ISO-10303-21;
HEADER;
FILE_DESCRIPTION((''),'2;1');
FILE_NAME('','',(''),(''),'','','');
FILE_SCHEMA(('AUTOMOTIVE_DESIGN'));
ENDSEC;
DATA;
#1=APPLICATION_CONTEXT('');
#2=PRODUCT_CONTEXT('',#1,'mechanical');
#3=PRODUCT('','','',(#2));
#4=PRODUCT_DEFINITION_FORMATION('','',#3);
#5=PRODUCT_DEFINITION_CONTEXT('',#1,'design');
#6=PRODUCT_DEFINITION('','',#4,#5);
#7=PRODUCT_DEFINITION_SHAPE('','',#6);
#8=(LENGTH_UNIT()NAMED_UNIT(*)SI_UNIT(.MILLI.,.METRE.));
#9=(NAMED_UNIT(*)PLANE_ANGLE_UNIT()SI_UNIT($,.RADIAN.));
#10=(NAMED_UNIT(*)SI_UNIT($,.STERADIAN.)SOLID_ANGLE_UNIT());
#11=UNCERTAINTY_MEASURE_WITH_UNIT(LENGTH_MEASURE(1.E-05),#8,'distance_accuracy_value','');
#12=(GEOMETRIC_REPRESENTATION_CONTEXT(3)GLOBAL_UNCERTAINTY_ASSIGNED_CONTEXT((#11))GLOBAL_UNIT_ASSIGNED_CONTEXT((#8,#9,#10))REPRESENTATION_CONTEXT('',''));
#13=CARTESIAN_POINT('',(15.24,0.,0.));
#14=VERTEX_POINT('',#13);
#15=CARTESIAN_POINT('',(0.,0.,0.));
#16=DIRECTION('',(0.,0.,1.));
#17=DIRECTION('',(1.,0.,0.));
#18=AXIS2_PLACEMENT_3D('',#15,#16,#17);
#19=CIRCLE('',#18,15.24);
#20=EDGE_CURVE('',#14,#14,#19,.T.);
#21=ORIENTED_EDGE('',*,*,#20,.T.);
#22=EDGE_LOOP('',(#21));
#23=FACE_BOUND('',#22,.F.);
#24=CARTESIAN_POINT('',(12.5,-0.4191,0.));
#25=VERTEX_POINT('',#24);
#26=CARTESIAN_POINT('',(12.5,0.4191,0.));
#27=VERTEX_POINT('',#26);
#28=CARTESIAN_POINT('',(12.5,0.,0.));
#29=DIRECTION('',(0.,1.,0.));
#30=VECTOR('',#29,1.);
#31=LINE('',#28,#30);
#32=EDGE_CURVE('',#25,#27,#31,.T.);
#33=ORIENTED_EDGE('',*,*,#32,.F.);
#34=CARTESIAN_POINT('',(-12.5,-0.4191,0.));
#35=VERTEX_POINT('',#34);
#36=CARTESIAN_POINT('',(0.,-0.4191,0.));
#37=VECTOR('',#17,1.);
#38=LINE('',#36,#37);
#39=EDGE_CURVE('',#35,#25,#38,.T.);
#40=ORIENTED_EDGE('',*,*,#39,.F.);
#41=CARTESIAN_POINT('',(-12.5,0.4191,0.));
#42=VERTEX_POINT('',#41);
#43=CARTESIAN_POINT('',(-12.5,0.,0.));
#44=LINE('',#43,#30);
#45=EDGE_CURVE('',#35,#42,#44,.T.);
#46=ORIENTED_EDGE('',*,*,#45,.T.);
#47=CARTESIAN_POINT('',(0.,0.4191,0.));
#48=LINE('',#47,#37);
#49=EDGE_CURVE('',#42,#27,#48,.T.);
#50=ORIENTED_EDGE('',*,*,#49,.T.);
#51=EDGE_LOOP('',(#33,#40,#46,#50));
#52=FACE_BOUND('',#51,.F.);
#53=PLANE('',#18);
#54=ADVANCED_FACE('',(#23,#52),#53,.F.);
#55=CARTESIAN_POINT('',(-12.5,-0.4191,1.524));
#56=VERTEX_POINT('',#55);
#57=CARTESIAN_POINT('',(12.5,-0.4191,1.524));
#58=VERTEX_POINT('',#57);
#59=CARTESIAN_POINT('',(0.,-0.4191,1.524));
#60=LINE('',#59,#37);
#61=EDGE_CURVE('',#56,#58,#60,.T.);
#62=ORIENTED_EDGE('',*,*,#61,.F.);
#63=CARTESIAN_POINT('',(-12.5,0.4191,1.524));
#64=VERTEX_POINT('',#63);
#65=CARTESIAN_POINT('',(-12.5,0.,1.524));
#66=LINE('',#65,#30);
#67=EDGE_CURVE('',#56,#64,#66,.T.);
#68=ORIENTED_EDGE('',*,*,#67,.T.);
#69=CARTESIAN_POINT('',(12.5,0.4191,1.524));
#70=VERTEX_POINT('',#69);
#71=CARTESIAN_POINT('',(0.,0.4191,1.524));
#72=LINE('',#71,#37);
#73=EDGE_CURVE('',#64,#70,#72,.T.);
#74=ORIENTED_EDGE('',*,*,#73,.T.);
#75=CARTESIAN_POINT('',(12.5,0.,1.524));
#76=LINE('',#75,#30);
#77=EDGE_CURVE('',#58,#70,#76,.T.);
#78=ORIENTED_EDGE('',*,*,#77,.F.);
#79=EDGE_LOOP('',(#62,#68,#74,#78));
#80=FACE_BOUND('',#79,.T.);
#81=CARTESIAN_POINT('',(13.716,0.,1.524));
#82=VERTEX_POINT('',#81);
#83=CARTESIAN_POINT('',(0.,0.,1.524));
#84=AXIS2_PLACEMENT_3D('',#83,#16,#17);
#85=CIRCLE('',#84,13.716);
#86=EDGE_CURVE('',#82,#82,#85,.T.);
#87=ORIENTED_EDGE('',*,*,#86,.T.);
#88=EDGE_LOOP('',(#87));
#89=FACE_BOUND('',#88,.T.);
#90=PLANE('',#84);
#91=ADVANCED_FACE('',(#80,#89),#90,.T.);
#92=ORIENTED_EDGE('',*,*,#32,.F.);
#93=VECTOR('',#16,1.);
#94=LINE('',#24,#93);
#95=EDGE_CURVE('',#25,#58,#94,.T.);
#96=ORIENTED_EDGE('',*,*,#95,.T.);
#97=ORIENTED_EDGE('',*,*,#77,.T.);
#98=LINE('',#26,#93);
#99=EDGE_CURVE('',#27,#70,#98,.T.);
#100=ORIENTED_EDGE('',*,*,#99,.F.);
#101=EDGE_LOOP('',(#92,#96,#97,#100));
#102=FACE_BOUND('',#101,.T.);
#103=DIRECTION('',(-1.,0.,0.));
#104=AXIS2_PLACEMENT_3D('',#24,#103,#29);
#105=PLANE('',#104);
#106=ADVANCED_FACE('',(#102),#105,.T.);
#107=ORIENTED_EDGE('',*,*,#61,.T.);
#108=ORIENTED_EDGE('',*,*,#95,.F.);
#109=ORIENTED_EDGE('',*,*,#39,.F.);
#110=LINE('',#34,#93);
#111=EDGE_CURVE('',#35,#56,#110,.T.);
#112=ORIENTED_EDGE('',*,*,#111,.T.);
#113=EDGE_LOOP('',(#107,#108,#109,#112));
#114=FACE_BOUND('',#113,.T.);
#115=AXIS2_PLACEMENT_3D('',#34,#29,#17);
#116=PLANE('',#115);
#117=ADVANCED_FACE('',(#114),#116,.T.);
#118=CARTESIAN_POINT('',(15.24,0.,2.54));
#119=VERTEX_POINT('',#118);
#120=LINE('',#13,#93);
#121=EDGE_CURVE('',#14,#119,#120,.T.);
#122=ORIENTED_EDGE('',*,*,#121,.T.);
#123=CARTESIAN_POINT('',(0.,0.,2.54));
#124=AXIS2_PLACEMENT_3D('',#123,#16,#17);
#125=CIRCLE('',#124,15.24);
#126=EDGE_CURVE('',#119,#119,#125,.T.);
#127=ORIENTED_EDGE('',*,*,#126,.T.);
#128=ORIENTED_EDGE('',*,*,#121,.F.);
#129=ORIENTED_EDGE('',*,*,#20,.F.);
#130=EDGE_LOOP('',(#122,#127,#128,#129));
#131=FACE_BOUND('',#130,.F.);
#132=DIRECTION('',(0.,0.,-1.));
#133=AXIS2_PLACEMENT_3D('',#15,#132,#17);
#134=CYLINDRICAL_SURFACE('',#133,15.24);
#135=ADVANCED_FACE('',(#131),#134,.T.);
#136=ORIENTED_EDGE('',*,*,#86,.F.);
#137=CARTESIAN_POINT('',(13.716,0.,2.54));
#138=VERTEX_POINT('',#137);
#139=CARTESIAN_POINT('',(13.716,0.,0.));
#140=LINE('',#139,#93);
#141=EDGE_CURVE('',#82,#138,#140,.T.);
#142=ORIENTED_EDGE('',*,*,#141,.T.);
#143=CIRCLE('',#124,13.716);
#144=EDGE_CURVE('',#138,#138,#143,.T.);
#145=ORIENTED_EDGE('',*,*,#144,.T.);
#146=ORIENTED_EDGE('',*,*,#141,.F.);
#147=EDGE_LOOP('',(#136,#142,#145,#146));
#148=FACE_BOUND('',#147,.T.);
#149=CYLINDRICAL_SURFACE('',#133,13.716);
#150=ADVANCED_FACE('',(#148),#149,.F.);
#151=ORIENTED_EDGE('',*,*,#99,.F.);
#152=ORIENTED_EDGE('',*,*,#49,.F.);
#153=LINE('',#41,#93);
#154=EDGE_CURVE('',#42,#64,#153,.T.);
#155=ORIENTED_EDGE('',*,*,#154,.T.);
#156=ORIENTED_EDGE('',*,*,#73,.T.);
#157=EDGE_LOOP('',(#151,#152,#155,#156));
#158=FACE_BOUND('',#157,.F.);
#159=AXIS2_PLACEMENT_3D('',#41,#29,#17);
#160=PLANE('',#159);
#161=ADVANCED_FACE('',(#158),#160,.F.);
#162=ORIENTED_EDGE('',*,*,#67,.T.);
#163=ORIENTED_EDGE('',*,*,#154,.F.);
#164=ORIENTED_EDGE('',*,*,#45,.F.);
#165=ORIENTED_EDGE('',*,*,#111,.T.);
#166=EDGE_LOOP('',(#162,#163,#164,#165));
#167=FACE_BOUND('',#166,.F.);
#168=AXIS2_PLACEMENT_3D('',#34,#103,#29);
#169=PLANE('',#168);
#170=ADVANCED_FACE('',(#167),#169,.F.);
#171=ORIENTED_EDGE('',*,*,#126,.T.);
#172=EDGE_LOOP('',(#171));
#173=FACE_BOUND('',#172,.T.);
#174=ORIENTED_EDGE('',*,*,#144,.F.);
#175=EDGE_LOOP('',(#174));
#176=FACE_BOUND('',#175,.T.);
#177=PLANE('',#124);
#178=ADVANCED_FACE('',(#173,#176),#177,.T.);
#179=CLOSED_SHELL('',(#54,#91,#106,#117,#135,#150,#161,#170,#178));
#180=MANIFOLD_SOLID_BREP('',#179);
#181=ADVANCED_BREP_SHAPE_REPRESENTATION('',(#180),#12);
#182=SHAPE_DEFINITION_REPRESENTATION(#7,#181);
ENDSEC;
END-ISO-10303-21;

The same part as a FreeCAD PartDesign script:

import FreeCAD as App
import Part
import Sketcher
from FreeCAD import Vector
Q = App.Units.Quantity


def add_polygon(sketch, points):
    """Adds a closed chain of lines whose ends are joined by coincident constraints."""
    first, n = sketch.GeometryCount, len(points)
    for a, b in zip(points, points[1:] + points[:1]):
        sketch.addGeometry(Part.LineSegment(App.Vector(*a, 0), App.Vector(*b, 0)), False)
    for i in range(n):
        sketch.addConstraint(Sketcher.Constraint("Coincident", first + i, 2, first + (i + 1) % n, 1))

doc = App.newDocument("Part")
params = doc.addObject("Spreadsheet::Sheet", "Params")
for row, (alias, value) in enumerate([
    ("sketch1_diameter", "1.2 in"),
    ("sketch1_diameter2", "1.08 in"),
    ("pad1_length", "0.1 in"),
    ("sketch2_diameter", "1.08 in"),
    ("sketch2_height", "0.033 in"),
    ("pad2_length", "0.06 in"),
], start=1):
    params.set(f"A{row}", alias)
    params.set(f"B{row}", "=" + value)
    params.setAlias(f"B{row}", alias)

body = doc.addObject("PartDesign::Body", "Body")

# Sketch on XY plane
sketch1 = doc.addObject("Sketcher::SketchObject", "Sketch")
body.addObject(sketch1)
sketch1.AttachmentSupport = (doc.XY_Plane, [""])
sketch1.MapMode = "FlatFace"
sketch1.addGeometry(Part.Circle(Vector(0, 0, 0), Vector(0, 0, 1), 15.24), False)
sketch1.addGeometry(Part.Circle(Vector(0, 0, 0), Vector(0, 0, 1), 13.716), False)
sketch1.addConstraint(Sketcher.Constraint("Coincident", 0, 3, -1, 1))
sketch1.addConstraint(Sketcher.Constraint("Coincident", 1, 3, -1, 1))
sketch1.addConstraint(Sketcher.Constraint("Diameter", 0, Q("1.2 in")))
sketch1.addConstraint(Sketcher.Constraint("Diameter", 1, Q("1.08 in")))
sketch1.setExpression("Constraints[2]", "Params.sketch1_diameter")
sketch1.setExpression("Constraints[3]", "Params.sketch1_diameter2")
pad1 = doc.addObject("PartDesign::Pad", "Pad")
body.addObject(pad1)
pad1.Profile = sketch1
pad1.setExpression("Length", "Params.pad1_length")

# Sketch on XY plane
sketch2 = doc.addObject("Sketcher::SketchObject", "Sketch001")
body.addObject(sketch2)
sketch2.AttachmentSupport = (doc.XY_Plane, [""])
sketch2.MapMode = "FlatFace"
sketch2.addGeometry(Part.Circle(Vector(0, 0, 0), Vector(0, 0, 1), 13.716), False)  # 0
add_polygon(sketch2, [(12.5, -0.4191), (-12.5, -0.4191), (-12.5, 0.4191), (12.5, 0.4191)])  # lines 1-4
sketch2.addConstraint(Sketcher.Constraint("Horizontal", 1))
sketch2.addConstraint(Sketcher.Constraint("Vertical", 2))
sketch2.addConstraint(Sketcher.Constraint("Horizontal", 3))
sketch2.addConstraint(Sketcher.Constraint("Vertical", 4))
sketch2.addConstraint(Sketcher.Constraint("Coincident", 0, 3, -1, 1))
sketch2.addConstraint(Sketcher.Constraint("Symmetric", 1, 2, 3, 2, -1, 1))
sketch2.addConstraint(Sketcher.Constraint("Diameter", 0, Q("1.08 in")))
sketch2.addConstraint(Sketcher.Constraint("DistanceY", 2, 1, 2, 2, Q("0.033 in")))
sketch2.addConstraint(Sketcher.Constraint("DistanceX", 1, 2, 1, 1, Q("25 mm")))
sketch2.setExpression("Constraints[10]", "Params.sketch2_diameter")
sketch2.setExpression("Constraints[11]", "Params.sketch2_height")
pad2 = doc.addObject("PartDesign::Pad", "Pad001")
body.addObject(pad2)
pad2.Profile = sketch2
pad2.setExpression("Length", "Params.pad2_length")

doc.recompute()
